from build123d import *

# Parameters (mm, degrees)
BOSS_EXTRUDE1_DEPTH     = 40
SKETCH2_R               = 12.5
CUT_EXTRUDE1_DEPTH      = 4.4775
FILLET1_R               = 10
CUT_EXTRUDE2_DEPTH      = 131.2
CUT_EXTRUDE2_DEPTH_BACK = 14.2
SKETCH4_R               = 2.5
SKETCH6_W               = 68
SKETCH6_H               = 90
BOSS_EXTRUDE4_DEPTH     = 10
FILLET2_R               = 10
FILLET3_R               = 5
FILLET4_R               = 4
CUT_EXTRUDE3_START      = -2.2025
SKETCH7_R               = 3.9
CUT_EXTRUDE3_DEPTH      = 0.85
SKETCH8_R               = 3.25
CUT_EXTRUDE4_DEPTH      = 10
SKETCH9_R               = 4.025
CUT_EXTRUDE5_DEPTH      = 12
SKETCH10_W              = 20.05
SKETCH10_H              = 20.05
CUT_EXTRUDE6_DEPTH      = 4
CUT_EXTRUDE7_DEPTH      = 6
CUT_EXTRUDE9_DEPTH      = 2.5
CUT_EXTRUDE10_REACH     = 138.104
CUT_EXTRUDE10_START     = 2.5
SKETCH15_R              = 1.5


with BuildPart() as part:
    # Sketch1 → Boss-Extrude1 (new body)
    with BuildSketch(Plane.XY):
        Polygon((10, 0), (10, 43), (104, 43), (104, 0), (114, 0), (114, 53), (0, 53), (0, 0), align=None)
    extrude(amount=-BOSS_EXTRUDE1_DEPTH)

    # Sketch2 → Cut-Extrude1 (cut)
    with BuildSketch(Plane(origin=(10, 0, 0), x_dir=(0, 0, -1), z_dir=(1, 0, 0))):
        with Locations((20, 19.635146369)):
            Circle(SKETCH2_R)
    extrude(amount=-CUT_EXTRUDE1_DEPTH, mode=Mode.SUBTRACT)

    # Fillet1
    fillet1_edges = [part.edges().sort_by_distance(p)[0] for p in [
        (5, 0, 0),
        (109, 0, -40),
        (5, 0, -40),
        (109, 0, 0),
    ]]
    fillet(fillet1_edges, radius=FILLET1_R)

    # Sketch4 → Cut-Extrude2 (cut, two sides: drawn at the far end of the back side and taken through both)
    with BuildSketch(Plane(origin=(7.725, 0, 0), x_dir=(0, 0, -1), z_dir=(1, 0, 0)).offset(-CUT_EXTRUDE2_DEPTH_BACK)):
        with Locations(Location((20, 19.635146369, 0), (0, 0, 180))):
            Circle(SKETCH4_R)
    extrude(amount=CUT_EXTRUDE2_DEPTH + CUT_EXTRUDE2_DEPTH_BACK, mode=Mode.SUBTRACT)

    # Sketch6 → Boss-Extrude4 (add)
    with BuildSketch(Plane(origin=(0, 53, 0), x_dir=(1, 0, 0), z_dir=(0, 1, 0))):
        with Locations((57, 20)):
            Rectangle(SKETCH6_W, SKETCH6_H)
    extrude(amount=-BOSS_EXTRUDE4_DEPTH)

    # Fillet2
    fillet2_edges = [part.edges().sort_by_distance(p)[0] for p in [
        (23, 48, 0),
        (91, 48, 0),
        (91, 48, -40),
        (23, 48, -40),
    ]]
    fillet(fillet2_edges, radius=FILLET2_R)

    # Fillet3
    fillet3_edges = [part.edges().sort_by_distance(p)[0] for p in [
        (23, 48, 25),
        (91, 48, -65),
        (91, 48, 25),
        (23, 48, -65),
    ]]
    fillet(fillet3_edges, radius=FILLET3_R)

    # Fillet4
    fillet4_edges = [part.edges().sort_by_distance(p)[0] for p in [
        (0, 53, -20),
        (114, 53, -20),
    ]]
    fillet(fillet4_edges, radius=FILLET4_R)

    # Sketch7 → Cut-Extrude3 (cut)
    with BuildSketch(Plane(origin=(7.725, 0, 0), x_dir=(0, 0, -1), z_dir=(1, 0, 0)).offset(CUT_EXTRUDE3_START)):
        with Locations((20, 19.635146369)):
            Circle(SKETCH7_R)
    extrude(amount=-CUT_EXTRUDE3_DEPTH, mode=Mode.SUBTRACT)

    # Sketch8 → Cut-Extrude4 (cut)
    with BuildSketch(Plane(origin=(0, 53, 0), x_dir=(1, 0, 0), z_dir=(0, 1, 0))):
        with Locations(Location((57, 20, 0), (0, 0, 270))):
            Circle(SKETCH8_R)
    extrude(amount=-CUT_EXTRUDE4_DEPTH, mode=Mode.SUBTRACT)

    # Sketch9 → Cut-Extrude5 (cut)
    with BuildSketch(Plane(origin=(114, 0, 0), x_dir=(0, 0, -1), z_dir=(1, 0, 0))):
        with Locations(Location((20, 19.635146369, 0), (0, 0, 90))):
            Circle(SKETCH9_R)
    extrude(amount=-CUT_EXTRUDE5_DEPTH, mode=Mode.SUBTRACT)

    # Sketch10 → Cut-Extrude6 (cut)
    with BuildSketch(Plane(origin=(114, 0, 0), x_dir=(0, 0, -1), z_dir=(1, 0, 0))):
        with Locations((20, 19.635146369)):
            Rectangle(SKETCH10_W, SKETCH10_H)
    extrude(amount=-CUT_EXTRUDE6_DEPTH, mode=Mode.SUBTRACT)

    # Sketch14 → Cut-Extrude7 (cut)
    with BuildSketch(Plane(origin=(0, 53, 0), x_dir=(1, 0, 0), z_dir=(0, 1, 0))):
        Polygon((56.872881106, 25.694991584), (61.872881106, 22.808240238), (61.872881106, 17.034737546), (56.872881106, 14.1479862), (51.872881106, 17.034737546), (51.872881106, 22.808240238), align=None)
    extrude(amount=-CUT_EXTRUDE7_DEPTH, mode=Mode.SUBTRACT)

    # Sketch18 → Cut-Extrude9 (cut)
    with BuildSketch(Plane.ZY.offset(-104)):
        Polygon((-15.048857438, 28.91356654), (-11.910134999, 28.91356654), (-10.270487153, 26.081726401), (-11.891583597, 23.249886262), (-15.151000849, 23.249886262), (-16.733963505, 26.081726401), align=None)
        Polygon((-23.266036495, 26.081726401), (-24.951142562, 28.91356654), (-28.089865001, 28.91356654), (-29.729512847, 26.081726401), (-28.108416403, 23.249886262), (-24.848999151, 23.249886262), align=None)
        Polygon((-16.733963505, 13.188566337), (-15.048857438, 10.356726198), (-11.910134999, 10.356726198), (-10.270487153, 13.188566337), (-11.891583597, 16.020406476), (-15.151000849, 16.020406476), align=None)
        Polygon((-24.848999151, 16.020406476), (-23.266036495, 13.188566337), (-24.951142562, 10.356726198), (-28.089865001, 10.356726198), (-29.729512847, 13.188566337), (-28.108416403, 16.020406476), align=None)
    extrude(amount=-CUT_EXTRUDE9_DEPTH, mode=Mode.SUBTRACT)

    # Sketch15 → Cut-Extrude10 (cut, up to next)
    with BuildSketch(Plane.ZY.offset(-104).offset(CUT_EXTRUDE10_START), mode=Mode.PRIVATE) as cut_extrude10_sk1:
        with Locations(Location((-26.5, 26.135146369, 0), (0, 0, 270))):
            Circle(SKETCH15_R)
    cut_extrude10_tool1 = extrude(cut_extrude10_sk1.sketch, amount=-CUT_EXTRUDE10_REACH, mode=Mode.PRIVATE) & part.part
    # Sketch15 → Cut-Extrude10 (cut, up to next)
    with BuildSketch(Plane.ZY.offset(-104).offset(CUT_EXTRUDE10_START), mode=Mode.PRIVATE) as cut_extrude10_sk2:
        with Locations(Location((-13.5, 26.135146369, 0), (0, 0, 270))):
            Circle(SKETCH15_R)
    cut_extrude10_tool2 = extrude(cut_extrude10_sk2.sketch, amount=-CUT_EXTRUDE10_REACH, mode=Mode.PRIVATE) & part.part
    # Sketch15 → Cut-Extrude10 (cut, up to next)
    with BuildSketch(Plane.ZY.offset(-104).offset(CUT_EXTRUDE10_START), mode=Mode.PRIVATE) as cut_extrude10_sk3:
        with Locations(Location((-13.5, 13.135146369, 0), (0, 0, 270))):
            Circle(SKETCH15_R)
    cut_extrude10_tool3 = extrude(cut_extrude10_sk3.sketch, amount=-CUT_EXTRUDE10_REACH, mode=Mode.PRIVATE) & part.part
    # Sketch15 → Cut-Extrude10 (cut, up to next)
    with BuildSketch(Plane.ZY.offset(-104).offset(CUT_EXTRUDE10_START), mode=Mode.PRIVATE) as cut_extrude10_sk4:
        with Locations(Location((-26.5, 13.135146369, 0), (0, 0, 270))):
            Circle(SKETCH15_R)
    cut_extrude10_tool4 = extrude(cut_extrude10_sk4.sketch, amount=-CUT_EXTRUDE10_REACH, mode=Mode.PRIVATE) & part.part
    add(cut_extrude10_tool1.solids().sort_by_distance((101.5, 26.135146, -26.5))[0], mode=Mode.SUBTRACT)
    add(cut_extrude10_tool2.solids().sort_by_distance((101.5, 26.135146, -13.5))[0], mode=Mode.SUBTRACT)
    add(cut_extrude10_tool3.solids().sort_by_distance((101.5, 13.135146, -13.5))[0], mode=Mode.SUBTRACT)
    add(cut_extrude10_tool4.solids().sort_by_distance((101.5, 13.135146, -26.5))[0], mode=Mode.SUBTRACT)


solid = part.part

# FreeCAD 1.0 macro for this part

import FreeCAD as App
import Part
import Sketcher

V = App.Vector
Q = App.Units.Quantity


def edges_at(feature, points):
    """Names of the edges that pass closest to the given points."""
    edges = feature.Shape.Edges
    near = lambda p: min(range(len(edges)), key=lambda i: edges[i].distToShape(Part.Vertex(*p))[0])
    return sorted({f"Edge{near(p) + 1}" for p in points})


def add_polygon(sketch, points):
    """Adds a closed chain of lines whose ends are joined by coincident constraints."""
    first, n = sketch.GeometryCount, len(points)
    for a, b in zip(points, points[1:] + points[:1]):
        sketch.addGeometry(Part.LineSegment(App.Vector(*a, 0), App.Vector(*b, 0)), False)
    for i in range(n):
        sketch.addConstraint(Sketcher.Constraint("Coincident", first + i, 2, first + (i + 1) % n, 1))

doc = App.newDocument("Part")
params = doc.addObject("Spreadsheet::Sheet", "Params")
for row, (alias, value) in enumerate([
    ("sketch1_width", "94 mm"),
    ("sketch1_width2", "10 mm"),
    ("sketch1_height", "43 mm"),
    ("sketch1_height2", "53 mm"),
    ("pad1_length", "40 mm"),
    ("sketch2_diameter", "25 mm"),
    ("pocket1_length", "4.4775 mm"),
    ("fillet_radius", "10 mm"),
    ("sketch3_diameter", "5 mm"),
    ("sketch4_width", "68 mm"),
    ("sketch4_height", "90 mm"),
    ("pad2_length", "10 mm"),
    ("fillet2_radius", "10 mm"),
    ("fillet3_radius", "5 mm"),
    ("fillet4_radius", "4 mm"),
    ("sketch5_diameter", "7.8 mm"),
    ("pocket3_length", "0.85 mm"),
    ("sketch6_diameter", "6.5 mm"),
    ("pocket4_length", "10 mm"),
    ("sketch7_diameter", "8.05 mm"),
    ("pocket5_length", "12 mm"),
    ("sketch8_width", "20.05 mm"),
    ("pocket6_length", "4 mm"),
    ("pocket7_length", "6 mm"),
    ("pocket8_length", "2.5 mm"),
    ("sketch11_diameter", "3 mm"),
    ("pocket9_length", "8.5 mm"),
    ("sketch12_diameter", "3 mm"),
    ("pocket10_length", "8.5 mm"),
    ("sketch13_diameter", "3 mm"),
    ("pocket11_length", "8.5 mm"),
    ("sketch14_diameter", "3 mm"),
    ("pocket12_length", "8.5 mm"),
], start=1):
    params.set(f"A{row}", alias)
    params.set(f"B{row}", "=" + value)
    params.setAlias(f"B{row}", alias)

body = doc.addObject("PartDesign::Body", "Body")

# Sketch on XY plane
sketch1 = body.newObject("Sketcher::SketchObject", "Sketch")
sketch1.AttachmentSupport = (doc.getObject("XY_Plane"), [""])
sketch1.MapMode = "FlatFace"
add_polygon(sketch1, [(10, 0), (10, 43), (104, 43), (104, 0), (114, 0), (114, 53), (0, 53), (0, 0)])  # lines 0-7
sketch1.addConstraint([
    Sketcher.Constraint("Vertical", 0),
    Sketcher.Constraint("Horizontal", 1),
    Sketcher.Constraint("Vertical", 2),
    Sketcher.Constraint("Horizontal", 3),
    Sketcher.Constraint("Vertical", 4),
    Sketcher.Constraint("Horizontal", 5),
    Sketcher.Constraint("Vertical", 6),
    Sketcher.Constraint("Horizontal", 7),
    Sketcher.Constraint("Coincident", 6, 2, -1, 1),
    Sketcher.Constraint("PointOnObject", 2, 2, -1),
    Sketcher.Constraint("Equal", 3, 7),
    Sketcher.Constraint("DistanceX", 1, 1, 1, 2, Q("94 mm")),
    Sketcher.Constraint("DistanceX", 3, 1, 3, 2, Q("10 mm")),
    Sketcher.Constraint("DistanceY", 0, 1, 0, 2, Q("43 mm")),
    Sketcher.Constraint("DistanceY", 4, 1, 4, 2, Q("53 mm")),
])
sketch1.setExpression("Constraints[19]", "Params.sketch1_width")
sketch1.setExpression("Constraints[20]", "Params.sketch1_width2")
sketch1.setExpression("Constraints[21]", "Params.sketch1_height")
sketch1.setExpression("Constraints[22]", "Params.sketch1_height2")
pad1 = body.newObject("PartDesign::Pad", "Pad")
pad1.Profile = sketch1
pad1.setExpression("Length", "Params.pad1_length")
pad1.Reversed = True

# Sketch on YZ plane
sketch2 = body.newObject("Sketcher::SketchObject", "Sketch001")
sketch2.AttachmentSupport = (doc.getObject("YZ_Plane"), [""])
sketch2.MapMode = "FlatFace"
sketch2.AttachmentOffset = App.Placement(V(0, 0, 10), App.Rotation())
sketch2.addGeometry(Part.Circle(V(20, -20, 0), V(0, 0, 1), 12), False)
sketch2.addConstraint([
    Sketcher.Constraint("Diameter", 0, Q("25 mm")),
    Sketcher.Constraint("DistanceY", 0, 3, -1, 1, Q("20 mm")),
    Sketcher.Constraint("DistanceX", -1, 1, 0, 3, Q("19.635146 mm")),
])
sketch2.setExpression("Constraints[0]", "Params.sketch2_diameter")
pocket1 = body.newObject("PartDesign::Pocket", "Pocket")
pocket1.Profile = sketch2
pocket1.setExpression("Length", "Params.pocket1_length")
doc.recompute()

fillet = body.newObject("PartDesign::Fillet", "Fillet")
fillet.Base = (pocket1, edges_at(pocket1, [
    (5, 0, 0),
    (109, 0, -40),
    (5, 0, -40),
    (109, 0, 0),
]))
fillet.setExpression("Radius", "Params.fillet_radius")

# Sketch on YZ plane
sketch3 = body.newObject("Sketcher::SketchObject", "Sketch002")
sketch3.AttachmentSupport = (doc.getObject("YZ_Plane"), [""])
sketch3.MapMode = "FlatFace"
sketch3.AttachmentOffset = App.Placement(V(0, 0, 7.725), App.Rotation())
sketch3.addGeometry(Part.Circle(V(19.6, -20, 0), V(0, 0, 1), 2.5), False)
sketch3.addConstraint([
    Sketcher.Constraint("Diameter", 0, Q("5 mm")),
    Sketcher.Constraint("DistanceY", 0, 3, -1, 1, Q("20 mm")),
    Sketcher.Constraint("DistanceX", -1, 1, 0, 3, Q("19.635146 mm")),
])
sketch3.setExpression("Constraints[0]", "Params.sketch3_diameter")
pocket2 = body.newObject("PartDesign::Pocket", "Pocket001")
pocket2.Profile = sketch3
pocket2.Type = "ThroughAll"
pocket2.Midplane = True

# Sketch on XZ plane
sketch4 = body.newObject("Sketcher::SketchObject", "Sketch003")
sketch4.AttachmentSupport = (doc.getObject("XZ_Plane"), [""])
sketch4.MapMode = "FlatFace"
sketch4.AttachmentOffset = App.Placement(V(0, 0, -53), App.Rotation())
add_polygon(sketch4, [(23, -65), (23, 25), (91, 25), (91, -65)])  # lines 0-3
sketch4.addConstraint([
    Sketcher.Constraint("Vertical", 0),
    Sketcher.Constraint("Horizontal", 1),
    Sketcher.Constraint("Vertical", 2),
    Sketcher.Constraint("Horizontal", 3),
    Sketcher.Constraint("DistanceX", 1, 1, 1, 2, Q("68 mm")),
    Sketcher.Constraint("DistanceY", 0, 1, 0, 2, Q("90 mm")),
    Sketcher.Constraint("DistanceX", -1, 1, 0, 2, Q("23 mm")),
    Sketcher.Constraint("DistanceY", -1, 1, 0, 2, Q("25 mm")),
])
sketch4.setExpression("Constraints[8]", "Params.sketch4_width")
sketch4.setExpression("Constraints[9]", "Params.sketch4_height")
pad2 = body.newObject("PartDesign::Pad", "Pad001")
pad2.Profile = sketch4
pad2.setExpression("Length", "Params.pad2_length")
doc.recompute()

fillet2 = body.newObject("PartDesign::Fillet", "Fillet001")
fillet2.Base = (pad2, edges_at(pad2, [
    (23, 48, 0),
    (91, 48, 0),
    (91, 48, -40),
    (23, 48, -40),
]))
fillet2.setExpression("Radius", "Params.fillet2_radius")
doc.recompute()

fillet3 = body.newObject("PartDesign::Fillet", "Fillet002")
fillet3.Base = (fillet2, edges_at(fillet2, [
    (23, 48, 25),
    (91, 48, -65),
    (91, 48, 25),
    (23, 48, -65),
]))
fillet3.setExpression("Radius", "Params.fillet3_radius")
doc.recompute()

fillet4 = body.newObject("PartDesign::Fillet", "Fillet003")
fillet4.Base = (fillet3, edges_at(fillet3, [(0, 53, -20), (114, 53, -20)]))
fillet4.setExpression("Radius", "Params.fillet4_radius")

# Sketch on YZ plane
sketch5 = body.newObject("Sketcher::SketchObject", "Sketch004")
sketch5.AttachmentSupport = (doc.getObject("YZ_Plane"), [""])
sketch5.MapMode = "FlatFace"
sketch5.AttachmentOffset = App.Placement(V(0, 0, 5.5225), App.Rotation())
sketch5.addGeometry(Part.Circle(V(19.6, -20, 0), V(0, 0, 1), 3.9), False)
sketch5.addConstraint([
    Sketcher.Constraint("Diameter", 0, Q("7.8 mm")),
    Sketcher.Constraint("DistanceY", 0, 3, -1, 1, Q("20 mm")),
    Sketcher.Constraint("DistanceX", -1, 1, 0, 3, Q("19.635146 mm")),
])
sketch5.setExpression("Constraints[0]", "Params.sketch5_diameter")
pocket3 = body.newObject("PartDesign::Pocket", "Pocket002")
pocket3.Profile = sketch5
pocket3.setExpression("Length", "Params.pocket3_length")

# Sketch on XZ plane
sketch6 = body.newObject("Sketcher::SketchObject", "Sketch005")
sketch6.AttachmentSupport = (doc.getObject("XZ_Plane"), [""])
sketch6.MapMode = "FlatFace"
sketch6.AttachmentOffset = App.Placement(V(0, 0, -53), App.Rotation())
sketch6.addGeometry(Part.Circle(V(57, -20, 0), V(0, 0, 1), 3.2), False)
sketch6.addConstraint([
    Sketcher.Constraint("Diameter", 0, Q("6.5 mm")),
    Sketcher.Constraint("DistanceX", -1, 1, 0, 3, Q("57 mm")),
    Sketcher.Constraint("DistanceY", 0, 3, -1, 1, Q("20 mm")),
])
sketch6.setExpression("Constraints[0]", "Params.sketch6_diameter")
pocket4 = body.newObject("PartDesign::Pocket", "Pocket003")
pocket4.Profile = sketch6
pocket4.setExpression("Length", "Params.pocket4_length")
pocket4.Reversed = True

# Sketch on YZ plane
sketch7 = body.newObject("Sketcher::SketchObject", "Sketch006")
sketch7.AttachmentSupport = (doc.getObject("YZ_Plane"), [""])
sketch7.MapMode = "FlatFace"
sketch7.AttachmentOffset = App.Placement(V(0, 0, 114), App.Rotation())
sketch7.addGeometry(Part.Circle(V(19.6, -20, 0), V(0, 0, 1), 4), False)
sketch7.addConstraint([
    Sketcher.Constraint("Diameter", 0, Q("8.05 mm")),
    Sketcher.Constraint("DistanceY", 0, 3, -1, 1, Q("20 mm")),
    Sketcher.Constraint("DistanceX", -1, 1, 0, 3, Q("19.635146 mm")),
])
sketch7.setExpression("Constraints[0]", "Params.sketch7_diameter")
pocket5 = body.newObject("PartDesign::Pocket", "Pocket004")
pocket5.Profile = sketch7
pocket5.setExpression("Length", "Params.pocket5_length")

# Sketch on YZ plane
sketch8 = body.newObject("Sketcher::SketchObject", "Sketch007")
sketch8.AttachmentSupport = (doc.getObject("YZ_Plane"), [""])
sketch8.MapMode = "FlatFace"
sketch8.AttachmentOffset = App.Placement(V(0, 0, 114), App.Rotation())
add_polygon(sketch8, [(30, -10), (10, -10), (10, -30), (30, -30)])  # lines 0-3
sketch8.addConstraint([
    Sketcher.Constraint("Horizontal", 0),
    Sketcher.Constraint("Vertical", 1),
    Sketcher.Constraint("Horizontal", 2),
    Sketcher.Constraint("Vertical", 3),
    Sketcher.Constraint("Equal", 2, 1),
    Sketcher.Constraint("DistanceX", 0, 2, 0, 1, Q("20.05 mm")),
    Sketcher.Constraint("DistanceY", 0, 2, -1, 1, Q("9.975 mm")),
    Sketcher.Constraint("DistanceX", -1, 1, 0, 2, Q("9.610146 mm")),
])
sketch8.setExpression("Constraints[9]", "Params.sketch8_width")
pocket6 = body.newObject("PartDesign::Pocket", "Pocket005")
pocket6.Profile = sketch8
pocket6.setExpression("Length", "Params.pocket6_length")

# Sketch on XZ plane
sketch9 = body.newObject("Sketcher::SketchObject", "Sketch008")
sketch9.AttachmentSupport = (doc.getObject("XZ_Plane"), [""])
sketch9.MapMode = "FlatFace"
sketch9.AttachmentOffset = App.Placement(V(0, 0, -53), App.Rotation())
add_polygon(sketch9, [(62, -23), (57, -26), (52, -23), (52, -17), (57, -14), (62, -17)])  # lines 0-5
sketch9.addConstraint([
    Sketcher.Constraint("Vertical", 2),
    Sketcher.Constraint("Vertical", 5),
    Sketcher.Constraint("Parallel", 0, 3),
    Sketcher.Constraint("Parallel", 1, 4),
    Sketcher.Constraint("Horizontal", 2, 2, 4, 2),
    Sketcher.Constraint("Horizontal", 1, 2, 5, 2),
    Sketcher.Constraint("Vertical", 0, 2, 3, 2),
    Sketcher.Constraint("Angle", 0, Q("-150 deg")),
    Sketcher.Constraint("DistanceX", 1, 2, 0, 2, Q("5 mm")),
    Sketcher.Constraint("DistanceY", 2, 1, 2, 2, Q("5.773503 mm")),
    Sketcher.Constraint("DistanceX", -1, 1, 0, 2, Q("56.872881 mm")),
    Sketcher.Constraint("DistanceY", 0, 2, -1, 1, Q("25.694992 mm")),
])
pocket7 = body.newObject("PartDesign::Pocket", "Pocket006")
pocket7.Profile = sketch9
pocket7.setExpression("Length", "Params.pocket7_length")
pocket7.Reversed = True

# Sketch on YZ plane
sketch10 = body.newObject("Sketcher::SketchObject", "Sketch009")
sketch10.AttachmentSupport = (doc.getObject("YZ_Plane"), [""])
sketch10.MapMode = "FlatFace"
sketch10.AttachmentOffset = App.Placement(V(0, 0, 104), App.Rotation())
add_polygon(sketch10, [(28.9, -11.9), (28.9, -15), (26.1, -16.7), (23.2, -15.2), (23.2, -11.9), (26.1, -10.3)])  # lines 0-5
add_polygon(sketch10, [(26.1, -23.3), (28.9, -25), (28.9, -28.1), (26.1, -29.7), (23.2, -28.1), (23.2, -24.8)])  # lines 6-11
add_polygon(sketch10, [(13.2, -16.7), (10.4, -15), (10.4, -11.9), (13.2, -10.3), (16, -11.9), (16, -15.2)])  # lines 12-17
add_polygon(sketch10, [(13.2, -23.3), (16, -24.8), (16, -28.1), (13.2, -29.7), (10.4, -28.1), (10.4, -25)])  # lines 18-23
sketch10.addConstraint([
    Sketcher.Constraint("Vertical", 0),
    Sketcher.Constraint("Vertical", 3),
    Sketcher.Constraint("Vertical", 7),
    Sketcher.Constraint("Vertical", 10),
    Sketcher.Constraint("Vertical", 13),
    Sketcher.Constraint("Vertical", 16),
    Sketcher.Constraint("Vertical", 19),
    Sketcher.Constraint("Vertical", 22),
    Sketcher.Constraint("Parallel", 6, 12),
    Sketcher.Constraint("Parallel", 8, 14),
    Sketcher.Constraint("Parallel", 9, 15),
    Sketcher.Constraint("Parallel", 11, 17),
    Sketcher.Constraint("Parallel", 2, 18),
    Sketcher.Constraint("Parallel", 4, 20),
    Sketcher.Constraint("Parallel", 5, 21),
    Sketcher.Constraint("Parallel", 1, 23),
    Sketcher.Constraint("Horizontal", 0, 2, 12, 2),
    Sketcher.Constraint("Horizontal", 5, 2, 13, 2),
    Sketcher.Constraint("Horizontal", 4, 2, 14, 2),
    Sketcher.Constraint("Horizontal", 3, 2, 15, 2),
    Sketcher.Constraint("Horizontal", 2, 2, 16, 2),
    Sketcher.Constraint("Horizontal", 1, 2, 17, 2),
    Sketcher.Constraint("Horizontal", 10, 2, 18, 2),
    Sketcher.Constraint("Horizontal", 9, 2, 19, 2),
    Sketcher.Constraint("Horizontal", 8, 2, 20, 2),
    Sketcher.Constraint("Horizontal", 7, 2, 21, 2),
    Sketcher.Constraint("Horizontal", 6, 2, 22, 2),
    Sketcher.Constraint("Vertical", 1, 2, 4, 2),
    Sketcher.Constraint("Vertical", 5, 2, 6, 2),
    Sketcher.Constraint("Vertical", 4, 2, 8, 2),
    Sketcher.Constraint("Vertical", 3, 2, 9, 2),
    Sketcher.Constraint("Vertical", 8, 2, 11, 2),
    Sketcher.Constraint("Vertical", 14, 2, 17, 2),
    Sketcher.Constraint("Vertical", 16, 2, 18, 2),
    Sketcher.Constraint("Vertical", 17, 2, 20, 2),
    Sketcher.Constraint("Vertical", 13, 2, 21, 2),
    Sketcher.Constraint("Equal", 0, 7),
    Sketcher.Constraint("DistanceY", 2, 2, -1, 1, Q("15.151001 mm")),
    Sketcher.Constraint("DistanceY", 10, 2, -1, 1, Q("24.848999 mm")),
    Sketcher.Constraint("DistanceX", 12, 2, 1, 2, Q("15.725 mm")),
    Sketcher.Constraint("DistanceY", 7, 2, 1, 2, Q("11.355901 mm")),
    Sketcher.Constraint("Distance", 2, Q("3.244239 mm")),
    Sketcher.Constraint("Distance", 5, Q("3.272272 mm")),
    Sketcher.Constraint("DistanceY", 0, 2, 0, 1, Q("3.138722 mm")),
    Sketcher.Constraint("DistanceY", 3, 1, 3, 2, Q("3.259417 mm")),
    Sketcher.Constraint("DistanceX", 1, 2, 0, 2, Q("2.83184 mm")),
    Sketcher.Constraint("DistanceX", 2, 2, 1, 2, Q("2.83184 mm")),
    Sketcher.Constraint("DistanceX", -1, 1, 0, 2, Q("28.913567 mm")),
])
pocket8 = body.newObject("PartDesign::Pocket", "Pocket007")
pocket8.Profile = sketch10
pocket8.setExpression("Length", "Params.pocket8_length")
pocket8.Reversed = True

# Sketch on YZ plane
sketch11 = body.newObject("Sketcher::SketchObject", "Sketch010")
sketch11.AttachmentSupport = (doc.getObject("YZ_Plane"), [""])
sketch11.MapMode = "FlatFace"
sketch11.AttachmentOffset = App.Placement(V(0, 0, 101.5), App.Rotation())
sketch11.addGeometry(Part.Circle(V(26.1, -26.5, 0), V(0, 0, 1), 1.5), False)
sketch11.addConstraint([
    Sketcher.Constraint("Diameter", 0, Q("3 mm")),
    Sketcher.Constraint("DistanceY", 0, 3, -1, 1, Q("26.5 mm")),
    Sketcher.Constraint("DistanceX", -1, 1, 0, 3, Q("26.135146 mm")),
])
sketch11.setExpression("Constraints[0]", "Params.sketch11_diameter")
pocket9 = body.newObject("PartDesign::Pocket", "Pocket008")
pocket9.Profile = sketch11
pocket9.setExpression("Length", "Params.pocket9_length")
pocket9.Reversed = True

# Sketch on YZ plane
sketch12 = body.newObject("Sketcher::SketchObject", "Sketch011")
sketch12.AttachmentSupport = (doc.getObject("YZ_Plane"), [""])
sketch12.MapMode = "FlatFace"
sketch12.AttachmentOffset = App.Placement(V(0, 0, 101.5), App.Rotation())
sketch12.addGeometry(Part.Circle(V(26.1, -13.5, 0), V(0, 0, 1), 1.5), False)
sketch12.addConstraint([
    Sketcher.Constraint("Diameter", 0, Q("3 mm")),
    Sketcher.Constraint("DistanceY", 0, 3, -1, 1, Q("13.5 mm")),
    Sketcher.Constraint("DistanceX", -1, 1, 0, 3, Q("26.135146 mm")),
])
sketch12.setExpression("Constraints[0]", "Params.sketch12_diameter")
pocket10 = body.newObject("PartDesign::Pocket", "Pocket009")
pocket10.Profile = sketch12
pocket10.setExpression("Length", "Params.pocket10_length")
pocket10.Reversed = True

# Sketch on YZ plane
sketch13 = body.newObject("Sketcher::SketchObject", "Sketch012")
sketch13.AttachmentSupport = (doc.getObject("YZ_Plane"), [""])
sketch13.MapMode = "FlatFace"
sketch13.AttachmentOffset = App.Placement(V(0, 0, 101.5), App.Rotation())
sketch13.addGeometry(Part.Circle(V(13.1, -13.5, 0), V(0, 0, 1), 1.5), False)
sketch13.addConstraint([
    Sketcher.Constraint("Diameter", 0, Q("3 mm")),
    Sketcher.Constraint("DistanceY", 0, 3, -1, 1, Q("13.5 mm")),
    Sketcher.Constraint("DistanceX", -1, 1, 0, 3, Q("13.135146 mm")),
])
sketch13.setExpression("Constraints[0]", "Params.sketch13_diameter")
pocket11 = body.newObject("PartDesign::Pocket", "Pocket010")
pocket11.Profile = sketch13
pocket11.setExpression("Length", "Params.pocket11_length")
pocket11.Reversed = True

# Sketch on YZ plane
sketch14 = body.newObject("Sketcher::SketchObject", "Sketch013")
sketch14.AttachmentSupport = (doc.getObject("YZ_Plane"), [""])
sketch14.MapMode = "FlatFace"
sketch14.AttachmentOffset = App.Placement(V(0, 0, 101.5), App.Rotation())
sketch14.addGeometry(Part.Circle(V(13.1, -26.5, 0), V(0, 0, 1), 1.5), False)
sketch14.addConstraint([
    Sketcher.Constraint("Diameter", 0, Q("3 mm")),
    Sketcher.Constraint("DistanceY", 0, 3, -1, 1, Q("26.5 mm")),
    Sketcher.Constraint("DistanceX", -1, 1, 0, 3, Q("13.135146 mm")),
])
sketch14.setExpression("Constraints[0]", "Params.sketch14_diameter")
pocket12 = body.newObject("PartDesign::Pocket", "Pocket011")
pocket12.Profile = sketch14
pocket12.setExpression("Length", "Params.pocket12_length")
pocket12.Reversed = True

doc.recompute()
